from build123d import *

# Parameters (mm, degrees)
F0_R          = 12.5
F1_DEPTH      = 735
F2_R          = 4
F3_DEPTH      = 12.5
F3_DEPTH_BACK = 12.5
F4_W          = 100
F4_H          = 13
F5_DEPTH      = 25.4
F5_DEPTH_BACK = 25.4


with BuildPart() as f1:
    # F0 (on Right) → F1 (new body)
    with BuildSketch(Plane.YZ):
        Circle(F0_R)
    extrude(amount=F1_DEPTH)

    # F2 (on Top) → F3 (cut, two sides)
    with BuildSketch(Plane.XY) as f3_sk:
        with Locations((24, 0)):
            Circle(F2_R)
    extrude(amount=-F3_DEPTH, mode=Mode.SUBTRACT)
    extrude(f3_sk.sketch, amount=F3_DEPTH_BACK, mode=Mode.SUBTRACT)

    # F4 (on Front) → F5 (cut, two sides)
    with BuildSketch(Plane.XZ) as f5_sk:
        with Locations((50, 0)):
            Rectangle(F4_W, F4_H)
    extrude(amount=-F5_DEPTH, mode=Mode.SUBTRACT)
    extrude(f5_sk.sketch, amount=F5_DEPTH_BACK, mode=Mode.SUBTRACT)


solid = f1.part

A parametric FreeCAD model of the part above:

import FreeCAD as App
import Part
import Sketcher

doc = App.newDocument("Part")
params = doc.addObject("Spreadsheet::Sheet", "Params")
for row, (alias, value) in enumerate([
    ("sketch1_diameter", "25 mm"),
    ("pad1_length", "735 mm"),
    ("sketch2_diameter", "8 mm"),
    ("sketch3_width", "100 mm"),
    ("sketch3_height", "13 mm"),
], start=1):
    params.set(f"A{row}", alias)
    params.set(f"B{row}", "=" + value)
    params.setAlias(f"B{row}", alias)

body = doc.addObject("PartDesign::Body", "Body")

sketch1 = body.newObject("Sketcher::SketchObject", "Sketch")
sketch1.AttachmentSupport = (doc.getObject("YZ_Plane"), [""])
sketch1.MapMode = "FlatFace"
sketch1.addGeometry(Part.Circle(App.Vector(0, 0, 0), App.Vector(0, 0, 1), 12), False)
sketch1.addConstraint([
    Sketcher.Constraint("Coincident", 0, 3, -1, 1),
    Sketcher.Constraint("Diameter", 0, 25.0),
])
sketch1.setExpression("Constraints[1]", "Params.sketch1_diameter")
pad1 = body.newObject("PartDesign::Pad", "Pad")
pad1.Profile = sketch1
pad1.setExpression("Length", "Params.pad1_length")

sketch2 = body.newObject("Sketcher::SketchObject", "Sketch001")
sketch2.AttachmentSupport = (doc.getObject("XY_Plane"), [""])
sketch2.MapMode = "FlatFace"
sketch2.addGeometry(Part.Circle(App.Vector(24, 0, 0), App.Vector(0, 0, 1), 4), False)
sketch2.addConstraint([
    Sketcher.Constraint("PointOnObject", 0, 3, -1),
    Sketcher.Constraint("Diameter", 0, 8.0),
    Sketcher.Constraint("DistanceX", -1, 1, 0, 3, 24.0),
])
sketch2.setExpression("Constraints[1]", "Params.sketch2_diameter")
pocket1 = body.newObject("PartDesign::Pocket", "Pocket")
pocket1.Profile = sketch2
pocket1.Type = "ThroughAll"
pocket1.Midplane = True

sketch3 = body.newObject("Sketcher::SketchObject", "Sketch002")
sketch3.AttachmentSupport = (doc.getObject("XZ_Plane"), [""])
sketch3.MapMode = "FlatFace"
sketch3.addGeometry([
    Part.LineSegment(App.Vector(0, 6, 0), App.Vector(0, -6, 0)),
    Part.LineSegment(App.Vector(0, -6, 0), App.Vector(100, -6, 0)),
    Part.LineSegment(App.Vector(100, -6, 0), App.Vector(100, 6, 0)),
    Part.LineSegment(App.Vector(100, 6, 0), App.Vector(0, 6, 0)),
], False)
sketch3.addConstraint([
    Sketcher.Constraint("Coincident", 0, 2, 1, 1),
    Sketcher.Constraint("Coincident", 1, 2, 2, 1),
    Sketcher.Constraint("Coincident", 2, 2, 3, 1),
    Sketcher.Constraint("Coincident", 3, 2, 0, 1),
    Sketcher.Constraint("Vertical", 0),
    Sketcher.Constraint("Horizontal", 1),
    Sketcher.Constraint("Vertical", 2),
    Sketcher.Constraint("Horizontal", 3),
    Sketcher.Constraint("Symmetric", 0, 2, 3, 2, -1, 1),
    Sketcher.Constraint("DistanceX", 1, 1, 1, 2, 100.0),
    Sketcher.Constraint("DistanceY", 0, 2, 0, 1, 13.0),
])
sketch3.setExpression("Constraints[9]", "Params.sketch3_width")
sketch3.setExpression("Constraints[10]", "Params.sketch3_height")
pocket2 = body.newObject("PartDesign::Pocket", "Pocket001")
pocket2.Profile = sketch3
pocket2.Type = "ThroughAll"
pocket2.Midplane = True

doc.recompute()
